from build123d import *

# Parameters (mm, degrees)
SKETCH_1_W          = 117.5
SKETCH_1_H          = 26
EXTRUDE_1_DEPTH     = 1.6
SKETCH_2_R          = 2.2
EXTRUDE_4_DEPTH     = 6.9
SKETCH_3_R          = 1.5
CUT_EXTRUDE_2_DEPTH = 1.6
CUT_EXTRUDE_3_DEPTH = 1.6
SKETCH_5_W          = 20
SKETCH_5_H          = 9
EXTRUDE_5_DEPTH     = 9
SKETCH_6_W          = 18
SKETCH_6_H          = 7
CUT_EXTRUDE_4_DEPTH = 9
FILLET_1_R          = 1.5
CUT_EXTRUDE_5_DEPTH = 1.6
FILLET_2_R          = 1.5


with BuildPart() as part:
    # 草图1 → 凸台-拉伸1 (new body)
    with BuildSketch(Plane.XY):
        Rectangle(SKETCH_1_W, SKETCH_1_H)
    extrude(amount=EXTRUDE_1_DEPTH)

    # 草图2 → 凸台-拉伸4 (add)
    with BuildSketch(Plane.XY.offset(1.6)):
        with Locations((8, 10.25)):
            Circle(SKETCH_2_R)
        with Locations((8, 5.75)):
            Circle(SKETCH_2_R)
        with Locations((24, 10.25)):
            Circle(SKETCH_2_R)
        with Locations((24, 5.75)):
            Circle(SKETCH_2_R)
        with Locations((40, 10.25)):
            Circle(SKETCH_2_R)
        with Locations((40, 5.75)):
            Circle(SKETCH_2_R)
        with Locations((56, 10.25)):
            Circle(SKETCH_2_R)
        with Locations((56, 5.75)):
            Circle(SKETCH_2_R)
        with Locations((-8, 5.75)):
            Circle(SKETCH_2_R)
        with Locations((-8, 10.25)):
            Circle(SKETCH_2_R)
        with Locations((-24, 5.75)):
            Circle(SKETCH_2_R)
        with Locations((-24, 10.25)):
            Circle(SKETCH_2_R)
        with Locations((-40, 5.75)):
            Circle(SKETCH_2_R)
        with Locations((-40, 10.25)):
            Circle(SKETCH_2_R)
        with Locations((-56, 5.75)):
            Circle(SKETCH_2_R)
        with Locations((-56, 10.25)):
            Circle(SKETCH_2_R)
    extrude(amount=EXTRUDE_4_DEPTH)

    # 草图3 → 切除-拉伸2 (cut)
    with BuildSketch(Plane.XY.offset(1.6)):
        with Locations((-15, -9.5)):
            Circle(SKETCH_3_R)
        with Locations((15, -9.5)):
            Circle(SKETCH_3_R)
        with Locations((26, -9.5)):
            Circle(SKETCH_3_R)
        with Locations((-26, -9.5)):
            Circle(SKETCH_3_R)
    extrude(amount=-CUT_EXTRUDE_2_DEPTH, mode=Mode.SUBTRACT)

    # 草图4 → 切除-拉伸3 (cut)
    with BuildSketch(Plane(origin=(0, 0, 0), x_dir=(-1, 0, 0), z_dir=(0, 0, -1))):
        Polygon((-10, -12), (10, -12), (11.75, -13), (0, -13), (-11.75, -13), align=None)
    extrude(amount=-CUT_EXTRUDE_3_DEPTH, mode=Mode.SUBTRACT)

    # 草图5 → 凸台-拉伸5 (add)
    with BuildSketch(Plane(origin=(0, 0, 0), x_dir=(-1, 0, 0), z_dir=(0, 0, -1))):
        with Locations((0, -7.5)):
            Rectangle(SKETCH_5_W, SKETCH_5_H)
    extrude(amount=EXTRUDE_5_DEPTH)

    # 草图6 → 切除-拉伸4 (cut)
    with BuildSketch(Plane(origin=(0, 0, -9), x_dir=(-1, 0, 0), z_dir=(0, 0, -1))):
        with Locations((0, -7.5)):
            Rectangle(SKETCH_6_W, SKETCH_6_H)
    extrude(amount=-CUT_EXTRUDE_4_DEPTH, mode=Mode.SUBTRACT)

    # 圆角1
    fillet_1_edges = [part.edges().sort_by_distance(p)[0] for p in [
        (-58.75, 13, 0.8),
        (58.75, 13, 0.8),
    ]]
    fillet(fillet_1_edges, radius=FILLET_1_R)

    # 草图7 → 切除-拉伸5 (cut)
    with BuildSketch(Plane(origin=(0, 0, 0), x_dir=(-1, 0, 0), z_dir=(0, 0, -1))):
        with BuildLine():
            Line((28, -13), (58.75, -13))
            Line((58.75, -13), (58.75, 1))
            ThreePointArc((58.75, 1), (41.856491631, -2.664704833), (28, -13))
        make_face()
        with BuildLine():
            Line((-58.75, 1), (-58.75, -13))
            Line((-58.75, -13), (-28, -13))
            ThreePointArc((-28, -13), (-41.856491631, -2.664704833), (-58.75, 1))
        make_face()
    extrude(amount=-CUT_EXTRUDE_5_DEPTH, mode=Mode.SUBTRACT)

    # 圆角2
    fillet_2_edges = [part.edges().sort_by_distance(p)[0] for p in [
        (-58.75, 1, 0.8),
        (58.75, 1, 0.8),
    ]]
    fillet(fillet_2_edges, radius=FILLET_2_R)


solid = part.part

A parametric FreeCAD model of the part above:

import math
import FreeCAD as App
import Part
import Sketcher


def edges_at(feature, points):
    """Names of the edges that pass closest to the given points."""
    edges = feature.Shape.Edges
    near = lambda p: min(range(len(edges)), key=lambda i: edges[i].distToShape(Part.Vertex(*p))[0])
    return sorted({f"Edge{near(p) + 1}" for p in points})


def add_polygon(sketch, points):
    """Adds a closed chain of lines whose ends are joined by coincident constraints."""
    first, n = sketch.GeometryCount, len(points)
    for a, b in zip(points, points[1:] + points[:1]):
        sketch.addGeometry(Part.LineSegment(App.Vector(*a, 0), App.Vector(*b, 0)), False)
    for i in range(n):
        sketch.addConstraint(Sketcher.Constraint("Coincident", first + i, 2, first + (i + 1) % n, 1))

doc = App.newDocument("Part")
params = doc.addObject("Spreadsheet::Sheet", "Params")
for row, (alias, value) in enumerate([
    ("sketch1_height", "26 mm"),
    ("sketch1_width", "117.5 mm"),
    ("pad1_length", "1.6 mm"),
    ("sketch2_diameter", "4.4 mm"),
    ("pad2_length", "6.9 mm"),
    ("sketch3_diameter", "3 mm"),
    ("pocket1_length", "1.6 mm"),
    ("sketch4_width", "20 mm"),
    ("sketch4_width2", "23.5 mm"),
    ("pocket2_length", "1.6 mm"),
    ("sketch5_width", "20 mm"),
    ("sketch5_height", "9 mm"),
    ("pad3_length", "9 mm"),
    ("sketch6_width", "18 mm"),
    ("sketch6_height", "7 mm"),
    ("pocket3_length", "9 mm"),
    ("fillet_radius", "1.5 mm"),
    ("sketch7_height", "14 mm"),
    ("sketch7_width", "30.75 mm"),
    ("pocket4_length", "1.6 mm"),
    ("fillet2_radius", "1.5 mm"),
], start=1):
    params.set(f"A{row}", alias)
    params.set(f"B{row}", "=" + value)
    params.setAlias(f"B{row}", alias)

body = doc.addObject("PartDesign::Body", "Body")

# Sketch on XY plane
sketch1 = doc.addObject("Sketcher::SketchObject", "Sketch")
body.addObject(sketch1)
sketch1.AttachmentSupport = (doc.XY_Plane, [""])
sketch1.MapMode = "FlatFace"
add_polygon(sketch1, [(-59, 13), (-59, -13), (59, -13), (59, 13)])  # lines 0-3
sketch1.addConstraint(Sketcher.Constraint("Vertical", 0))
sketch1.addConstraint(Sketcher.Constraint("Horizontal", 1))
sketch1.addConstraint(Sketcher.Constraint("Vertical", 2))
sketch1.addConstraint(Sketcher.Constraint("Horizontal", 3))
sketch1.addConstraint(Sketcher.Constraint("Symmetric", 0, 2, 2, 2, -1, 1))
sketch1.addConstraint(Sketcher.Constraint("DistanceY", 0, 2, 0, 1, 26.0))
sketch1.addConstraint(Sketcher.Constraint("DistanceX", 1, 1, 1, 2, 117.5))
sketch1.setExpression("Constraints[9]", "Params.sketch1_height")
sketch1.setExpression("Constraints[10]", "Params.sketch1_width")
pad1 = doc.addObject("PartDesign::Pad", "Pad")
body.addObject(pad1)
pad1.Profile = sketch1
pad1.setExpression("Length", "Params.pad1_length")

# Sketch on XY plane
sketch2 = doc.addObject("Sketcher::SketchObject", "Sketch001")
body.addObject(sketch2)
sketch2.AttachmentSupport = (doc.XY_Plane, [""])
sketch2.MapMode = "FlatFace"
sketch2.AttachmentOffset = App.Placement(App.Vector(0, 0, 1.6), App.Rotation())
sketch2.addGeometry(Part.Circle(App.Vector(8, 10.2, 0), App.Vector(0, 0, 1), 2.2), False)
sketch2.addGeometry(Part.Circle(App.Vector(8, 5.8, 0), App.Vector(0, 0, 1), 2.2), False)
sketch2.addGeometry(Part.Circle(App.Vector(24, 10.2, 0), App.Vector(0, 0, 1), 2.2), False)
sketch2.addGeometry(Part.Circle(App.Vector(24, 5.8, 0), App.Vector(0, 0, 1), 2.2), False)
sketch2.addGeometry(Part.Circle(App.Vector(40, 10.2, 0), App.Vector(0, 0, 1), 2.2), False)
sketch2.addGeometry(Part.Circle(App.Vector(40, 5.8, 0), App.Vector(0, 0, 1), 2.2), False)
sketch2.addGeometry(Part.Circle(App.Vector(56, 10.2, 0), App.Vector(0, 0, 1), 2.2), False)
sketch2.addGeometry(Part.Circle(App.Vector(56, 5.8, 0), App.Vector(0, 0, 1), 2.2), False)
sketch2.addGeometry(Part.Circle(App.Vector(-8, 5.8, 0), App.Vector(0, 0, 1), 2.2), False)
sketch2.addGeometry(Part.Circle(App.Vector(-8, 10.2, 0), App.Vector(0, 0, 1), 2.2), False)
sketch2.addGeometry(Part.Circle(App.Vector(-24, 5.8, 0), App.Vector(0, 0, 1), 2.2), False)
sketch2.addGeometry(Part.Circle(App.Vector(-24, 10.2, 0), App.Vector(0, 0, 1), 2.2), False)
sketch2.addGeometry(Part.Circle(App.Vector(-40, 5.8, 0), App.Vector(0, 0, 1), 2.2), False)
sketch2.addGeometry(Part.Circle(App.Vector(-40, 10.2, 0), App.Vector(0, 0, 1), 2.2), False)
sketch2.addGeometry(Part.Circle(App.Vector(-56, 5.8, 0), App.Vector(0, 0, 1), 2.2), False)
sketch2.addGeometry(Part.Circle(App.Vector(-56, 10.2, 0), App.Vector(0, 0, 1), 2.2), False)
sketch2.addConstraint(Sketcher.Constraint("Equal", 0, 1))
sketch2.addConstraint(Sketcher.Constraint("Equal", 1, 2))
sketch2.addConstraint(Sketcher.Constraint("Equal", 2, 3))
sketch2.addConstraint(Sketcher.Constraint("Equal", 3, 4))
sketch2.addConstraint(Sketcher.Constraint("Equal", 4, 5))
sketch2.addConstraint(Sketcher.Constraint("Equal", 5, 6))
sketch2.addConstraint(Sketcher.Constraint("Equal", 6, 7))
sketch2.addConstraint(Sketcher.Constraint("Equal", 7, 8))
sketch2.addConstraint(Sketcher.Constraint("Equal", 8, 9))
sketch2.addConstraint(Sketcher.Constraint("Equal", 9, 10))
sketch2.addConstraint(Sketcher.Constraint("Equal", 10, 11))
sketch2.addConstraint(Sketcher.Constraint("Equal", 11, 12))
sketch2.addConstraint(Sketcher.Constraint("Equal", 12, 13))
sketch2.addConstraint(Sketcher.Constraint("Equal", 13, 14))
sketch2.addConstraint(Sketcher.Constraint("Equal", 14, 15))
sketch2.addConstraint(Sketcher.Constraint("Symmetric", 1, 3, 8, 3, -2))
sketch2.addConstraint(Sketcher.Constraint("Symmetric", 0, 3, 9, 3, -2))
sketch2.addConstraint(Sketcher.Constraint("Symmetric", 3, 3, 10, 3, -2))
sketch2.addConstraint(Sketcher.Constraint("Symmetric", 2, 3, 11, 3, -2))
sketch2.addConstraint(Sketcher.Constraint("Symmetric", 5, 3, 12, 3, -2))
sketch2.addConstraint(Sketcher.Constraint("Symmetric", 4, 3, 13, 3, -2))
sketch2.addConstraint(Sketcher.Constraint("Symmetric", 7, 3, 14, 3, -2))
sketch2.addConstraint(Sketcher.Constraint("Symmetric", 6, 3, 15, 3, -2))
sketch2.addConstraint(Sketcher.Constraint("Horizontal", 0, 3, 2, 3))
sketch2.addConstraint(Sketcher.Constraint("Horizontal", 1, 3, 3, 3))
sketch2.addConstraint(Sketcher.Constraint("Horizontal", 2, 3, 4, 3))
sketch2.addConstraint(Sketcher.Constraint("Horizontal", 3, 3, 5, 3))
sketch2.addConstraint(Sketcher.Constraint("Horizontal", 4, 3, 6, 3))
sketch2.addConstraint(Sketcher.Constraint("Horizontal", 5, 3, 7, 3))
sketch2.addConstraint(Sketcher.Constraint("Vertical", 0, 3, 1, 3))
sketch2.addConstraint(Sketcher.Constraint("Vertical", 2, 3, 3, 3))
sketch2.addConstraint(Sketcher.Constraint("Vertical", 4, 3, 5, 3))
sketch2.addConstraint(Sketcher.Constraint("Vertical", 6, 3, 7, 3))
sketch2.addConstraint(Sketcher.Constraint("Diameter", 0, 4.4))
sketch2.addConstraint(Sketcher.Constraint("DistanceX", -1, 1, 0, 3, 8.0))
sketch2.addConstraint(Sketcher.Constraint("DistanceX", -1, 1, 2, 3, 24.0))
sketch2.addConstraint(Sketcher.Constraint("DistanceX", -1, 1, 4, 3, 40.0))
sketch2.addConstraint(Sketcher.Constraint("DistanceX", -1, 1, 6, 3, 56.0))
sketch2.addConstraint(Sketcher.Constraint("DistanceY", 1, 3, 0, 3, 4.5))
sketch2.addConstraint(Sketcher.Constraint("DistanceY", -1, 1, 0, 3, 10.25))
sketch2.setExpression("Constraints[33]", "Params.sketch2_diameter")
pad2 = doc.addObject("PartDesign::Pad", "Pad001")
body.addObject(pad2)
pad2.Profile = sketch2
pad2.setExpression("Length", "Params.pad2_length")

# Sketch on XY plane
sketch3 = doc.addObject("Sketcher::SketchObject", "Sketch002")
body.addObject(sketch3)
sketch3.AttachmentSupport = (doc.XY_Plane, [""])
sketch3.MapMode = "FlatFace"
sketch3.AttachmentOffset = App.Placement(App.Vector(0, 0, 1.6), App.Rotation())
sketch3.addGeometry(Part.Circle(App.Vector(-15, -9.5, 0), App.Vector(0, 0, 1), 1.5), False)
sketch3.addGeometry(Part.Circle(App.Vector(15, -9.5, 0), App.Vector(0, 0, 1), 1.5), False)
sketch3.addGeometry(Part.Circle(App.Vector(26, -9.5, 0), App.Vector(0, 0, 1), 1.5), False)
sketch3.addGeometry(Part.Circle(App.Vector(-26, -9.5, 0), App.Vector(0, 0, 1), 1.5), False)
sketch3.addConstraint(Sketcher.Constraint("Equal", 0, 1))
sketch3.addConstraint(Sketcher.Constraint("Equal", 1, 2))
sketch3.addConstraint(Sketcher.Constraint("Equal", 2, 3))
sketch3.addConstraint(Sketcher.Constraint("Symmetric", 0, 3, 1, 3, -2))
sketch3.addConstraint(Sketcher.Constraint("Symmetric", 2, 3, 3, 3, -2))
sketch3.addConstraint(Sketcher.Constraint("Horizontal", 1, 3, 2, 3))
sketch3.addConstraint(Sketcher.Constraint("Diameter", 0, 3.0))
sketch3.addConstraint(Sketcher.Constraint("DistanceX", 0, 3, -1, 1, 15.0))
sketch3.addConstraint(Sketcher.Constraint("DistanceX", -1, 1, 2, 3, 26.0))
sketch3.addConstraint(Sketcher.Constraint("DistanceY", 0, 3, -1, 1, 9.5))
sketch3.setExpression("Constraints[6]", "Params.sketch3_diameter")
pocket1 = doc.addObject("PartDesign::Pocket", "Pocket")
body.addObject(pocket1)
pocket1.Profile = sketch3
pocket1.setExpression("Length", "Params.pocket1_length")

# Sketch on XY plane
sketch4 = doc.addObject("Sketcher::SketchObject", "Sketch003")
body.addObject(sketch4)
sketch4.AttachmentSupport = (doc.XY_Plane, [""])
sketch4.MapMode = "FlatFace"
add_polygon(sketch4, [(-10, -12), (10, -12), (11.8, -13), (-11.8, -13)])  # lines 0-3
sketch4.addConstraint(Sketcher.Constraint("Horizontal", 0))
sketch4.addConstraint(Sketcher.Constraint("Horizontal", 2))
sketch4.addConstraint(Sketcher.Constraint("Equal", 1, 3))
sketch4.addConstraint(Sketcher.Constraint("DistanceX", 0, 1, 0, 2, 20.0))
sketch4.addConstraint(Sketcher.Constraint("DistanceX", 2, 2, 2, 1, 23.5))
sketch4.addConstraint(Sketcher.Constraint("DistanceX", -1, 1, 0, 2, 10.0))
sketch4.addConstraint(Sketcher.Constraint("DistanceY", 0, 2, -1, 1, 12.0))
sketch4.addConstraint(Sketcher.Constraint("DistanceY", 1, 2, -1, 1, 13.0))
sketch4.setExpression("Constraints[7]", "Params.sketch4_width")
sketch4.setExpression("Constraints[8]", "Params.sketch4_width2")
pocket2 = doc.addObject("PartDesign::Pocket", "Pocket001")
body.addObject(pocket2)
pocket2.Profile = sketch4
pocket2.setExpression("Length", "Params.pocket2_length")
pocket2.Reversed = True

# Sketch on XY plane
sketch5 = doc.addObject("Sketcher::SketchObject", "Sketch004")
body.addObject(sketch5)
sketch5.AttachmentSupport = (doc.XY_Plane, [""])
sketch5.MapMode = "FlatFace"
add_polygon(sketch5, [(10, -3), (10, -12), (-10, -12), (-10, -3)])  # lines 0-3
sketch5.addConstraint(Sketcher.Constraint("Vertical", 0))
sketch5.addConstraint(Sketcher.Constraint("Horizontal", 1))
sketch5.addConstraint(Sketcher.Constraint("Vertical", 2))
sketch5.addConstraint(Sketcher.Constraint("Horizontal", 3))
sketch5.addConstraint(Sketcher.Constraint("DistanceX", 1, 2, 1, 1, 20.0))
sketch5.addConstraint(Sketcher.Constraint("DistanceY", 0, 2, 0, 1, 9.0))
sketch5.addConstraint(Sketcher.Constraint("DistanceX", -1, 1, 0, 2, 10.0))
sketch5.addConstraint(Sketcher.Constraint("DistanceY", 0, 2, -1, 1, 12.0))
sketch5.setExpression("Constraints[8]", "Params.sketch5_width")
sketch5.setExpression("Constraints[9]", "Params.sketch5_height")
pad3 = doc.addObject("PartDesign::Pad", "Pad002")
body.addObject(pad3)
pad3.Profile = sketch5
pad3.setExpression("Length", "Params.pad3_length")
pad3.Reversed = True

# Sketch on XY plane
sketch6 = doc.addObject("Sketcher::SketchObject", "Sketch005")
body.addObject(sketch6)
sketch6.AttachmentSupport = (doc.XY_Plane, [""])
sketch6.MapMode = "FlatFace"
sketch6.AttachmentOffset = App.Placement(App.Vector(0, 0, -9), App.Rotation())
add_polygon(sketch6, [(9, -4), (9, -11), (-9, -11), (-9, -4)])  # lines 0-3
sketch6.addConstraint(Sketcher.Constraint("Vertical", 0))
sketch6.addConstraint(Sketcher.Constraint("Horizontal", 1))
sketch6.addConstraint(Sketcher.Constraint("Vertical", 2))
sketch6.addConstraint(Sketcher.Constraint("Horizontal", 3))
sketch6.addConstraint(Sketcher.Constraint("DistanceX", 1, 2, 1, 1, 18.0))
sketch6.addConstraint(Sketcher.Constraint("DistanceY", 0, 2, 0, 1, 7.0))
sketch6.addConstraint(Sketcher.Constraint("DistanceX", -1, 1, 0, 2, 9.0))
sketch6.addConstraint(Sketcher.Constraint("DistanceY", 0, 2, -1, 1, 11.0))
sketch6.setExpression("Constraints[8]", "Params.sketch6_width")
sketch6.setExpression("Constraints[9]", "Params.sketch6_height")
pocket3 = doc.addObject("PartDesign::Pocket", "Pocket002")
body.addObject(pocket3)
pocket3.Profile = sketch6
pocket3.setExpression("Length", "Params.pocket3_length")
pocket3.Reversed = True
doc.recompute()

fillet = doc.addObject("PartDesign::Fillet", "Fillet")
body.addObject(fillet)
fillet.Base = (pocket3, edges_at(pocket3, [(-58.75, 13, 0.8), (58.75, 13, 0.8)]))
fillet.setExpression("Radius", "Params.fillet_radius")

# Sketch on XY plane
sketch7 = doc.addObject("Sketcher::SketchObject", "Sketch006")
body.addObject(sketch7)
sketch7.AttachmentSupport = (doc.XY_Plane, [""])
sketch7.MapMode = "FlatFace"
sketch7.addGeometry(Part.LineSegment(App.Vector(-28, -13, 0), App.Vector(-59, -13, 0)), False)
sketch7.addGeometry(Part.LineSegment(App.Vector(-59, -13, 0), App.Vector(-59, 1, 0)), False)
sketch7.addGeometry(Part.ArcOfCircle(Part.Circle(App.Vector(-59, -40, 0), App.Vector(0, 0, 1), 41), math.radians(41), math.radians(90)), False)
sketch7.addGeometry(Part.LineSegment(App.Vector(59, 1, 0), App.Vector(59, -13, 0)), False)
sketch7.addGeometry(Part.LineSegment(App.Vector(59, -13, 0), App.Vector(28, -13, 0)), False)
sketch7.addGeometry(Part.ArcOfCircle(Part.Circle(App.Vector(59, -40, 0), App.Vector(0, 0, 1), 41), math.radians(90), math.radians(139)), False)
sketch7.addConstraint(Sketcher.Constraint("Coincident", 0, 2, 1, 1))
sketch7.addConstraint(Sketcher.Constraint("Coincident", 1, 2, 2, 2))
sketch7.addConstraint(Sketcher.Constraint("Coincident", 2, 1, 0, 1))
sketch7.addConstraint(Sketcher.Constraint("Coincident", 3, 2, 4, 1))
sketch7.addConstraint(Sketcher.Constraint("Coincident", 4, 2, 5, 2))
sketch7.addConstraint(Sketcher.Constraint("Coincident", 5, 1, 3, 1))
sketch7.addConstraint(Sketcher.Constraint("Horizontal", 0))
sketch7.addConstraint(Sketcher.Constraint("Vertical", 1))
sketch7.addConstraint(Sketcher.Constraint("Vertical", 3))
sketch7.addConstraint(Sketcher.Constraint("Horizontal", 4))
sketch7.addConstraint(Sketcher.Constraint("Equal", 2, 5))
sketch7.addConstraint(Sketcher.Constraint("Symmetric", 2, 3, 5, 3, -2))
sketch7.addConstraint(Sketcher.Constraint("Symmetric", 0, 2, 3, 2, -2))
sketch7.addConstraint(Sketcher.Constraint("Vertical", 2, 3, 0, 2))
sketch7.addConstraint(Sketcher.Constraint("DistanceY", 1, 1, 1, 2, 14.0))
sketch7.addConstraint(Sketcher.Constraint("DistanceY", 0, 2, -1, 1, 13.0))
sketch7.addConstraint(Sketcher.Constraint("DistanceX", 2, 1, -1, 1, 28.0))
sketch7.addConstraint(Sketcher.Constraint("DistanceX", 0, 2, 0, 1, 30.75))
sketch7.setExpression("Constraints[14]", "Params.sketch7_height")
sketch7.setExpression("Constraints[17]", "Params.sketch7_width")
pocket4 = doc.addObject("PartDesign::Pocket", "Pocket003")
body.addObject(pocket4)
pocket4.Profile = sketch7
pocket4.setExpression("Length", "Params.pocket4_length")
pocket4.Reversed = True
doc.recompute()

fillet2 = doc.addObject("PartDesign::Fillet", "Fillet001")
body.addObject(fillet2)
fillet2.Base = (pocket4, edges_at(pocket4, [(-58.75, 1, 0.8), (58.75, 1, 0.8)]))
fillet2.setExpression("Radius", "Params.fillet2_radius")

doc.recompute()
